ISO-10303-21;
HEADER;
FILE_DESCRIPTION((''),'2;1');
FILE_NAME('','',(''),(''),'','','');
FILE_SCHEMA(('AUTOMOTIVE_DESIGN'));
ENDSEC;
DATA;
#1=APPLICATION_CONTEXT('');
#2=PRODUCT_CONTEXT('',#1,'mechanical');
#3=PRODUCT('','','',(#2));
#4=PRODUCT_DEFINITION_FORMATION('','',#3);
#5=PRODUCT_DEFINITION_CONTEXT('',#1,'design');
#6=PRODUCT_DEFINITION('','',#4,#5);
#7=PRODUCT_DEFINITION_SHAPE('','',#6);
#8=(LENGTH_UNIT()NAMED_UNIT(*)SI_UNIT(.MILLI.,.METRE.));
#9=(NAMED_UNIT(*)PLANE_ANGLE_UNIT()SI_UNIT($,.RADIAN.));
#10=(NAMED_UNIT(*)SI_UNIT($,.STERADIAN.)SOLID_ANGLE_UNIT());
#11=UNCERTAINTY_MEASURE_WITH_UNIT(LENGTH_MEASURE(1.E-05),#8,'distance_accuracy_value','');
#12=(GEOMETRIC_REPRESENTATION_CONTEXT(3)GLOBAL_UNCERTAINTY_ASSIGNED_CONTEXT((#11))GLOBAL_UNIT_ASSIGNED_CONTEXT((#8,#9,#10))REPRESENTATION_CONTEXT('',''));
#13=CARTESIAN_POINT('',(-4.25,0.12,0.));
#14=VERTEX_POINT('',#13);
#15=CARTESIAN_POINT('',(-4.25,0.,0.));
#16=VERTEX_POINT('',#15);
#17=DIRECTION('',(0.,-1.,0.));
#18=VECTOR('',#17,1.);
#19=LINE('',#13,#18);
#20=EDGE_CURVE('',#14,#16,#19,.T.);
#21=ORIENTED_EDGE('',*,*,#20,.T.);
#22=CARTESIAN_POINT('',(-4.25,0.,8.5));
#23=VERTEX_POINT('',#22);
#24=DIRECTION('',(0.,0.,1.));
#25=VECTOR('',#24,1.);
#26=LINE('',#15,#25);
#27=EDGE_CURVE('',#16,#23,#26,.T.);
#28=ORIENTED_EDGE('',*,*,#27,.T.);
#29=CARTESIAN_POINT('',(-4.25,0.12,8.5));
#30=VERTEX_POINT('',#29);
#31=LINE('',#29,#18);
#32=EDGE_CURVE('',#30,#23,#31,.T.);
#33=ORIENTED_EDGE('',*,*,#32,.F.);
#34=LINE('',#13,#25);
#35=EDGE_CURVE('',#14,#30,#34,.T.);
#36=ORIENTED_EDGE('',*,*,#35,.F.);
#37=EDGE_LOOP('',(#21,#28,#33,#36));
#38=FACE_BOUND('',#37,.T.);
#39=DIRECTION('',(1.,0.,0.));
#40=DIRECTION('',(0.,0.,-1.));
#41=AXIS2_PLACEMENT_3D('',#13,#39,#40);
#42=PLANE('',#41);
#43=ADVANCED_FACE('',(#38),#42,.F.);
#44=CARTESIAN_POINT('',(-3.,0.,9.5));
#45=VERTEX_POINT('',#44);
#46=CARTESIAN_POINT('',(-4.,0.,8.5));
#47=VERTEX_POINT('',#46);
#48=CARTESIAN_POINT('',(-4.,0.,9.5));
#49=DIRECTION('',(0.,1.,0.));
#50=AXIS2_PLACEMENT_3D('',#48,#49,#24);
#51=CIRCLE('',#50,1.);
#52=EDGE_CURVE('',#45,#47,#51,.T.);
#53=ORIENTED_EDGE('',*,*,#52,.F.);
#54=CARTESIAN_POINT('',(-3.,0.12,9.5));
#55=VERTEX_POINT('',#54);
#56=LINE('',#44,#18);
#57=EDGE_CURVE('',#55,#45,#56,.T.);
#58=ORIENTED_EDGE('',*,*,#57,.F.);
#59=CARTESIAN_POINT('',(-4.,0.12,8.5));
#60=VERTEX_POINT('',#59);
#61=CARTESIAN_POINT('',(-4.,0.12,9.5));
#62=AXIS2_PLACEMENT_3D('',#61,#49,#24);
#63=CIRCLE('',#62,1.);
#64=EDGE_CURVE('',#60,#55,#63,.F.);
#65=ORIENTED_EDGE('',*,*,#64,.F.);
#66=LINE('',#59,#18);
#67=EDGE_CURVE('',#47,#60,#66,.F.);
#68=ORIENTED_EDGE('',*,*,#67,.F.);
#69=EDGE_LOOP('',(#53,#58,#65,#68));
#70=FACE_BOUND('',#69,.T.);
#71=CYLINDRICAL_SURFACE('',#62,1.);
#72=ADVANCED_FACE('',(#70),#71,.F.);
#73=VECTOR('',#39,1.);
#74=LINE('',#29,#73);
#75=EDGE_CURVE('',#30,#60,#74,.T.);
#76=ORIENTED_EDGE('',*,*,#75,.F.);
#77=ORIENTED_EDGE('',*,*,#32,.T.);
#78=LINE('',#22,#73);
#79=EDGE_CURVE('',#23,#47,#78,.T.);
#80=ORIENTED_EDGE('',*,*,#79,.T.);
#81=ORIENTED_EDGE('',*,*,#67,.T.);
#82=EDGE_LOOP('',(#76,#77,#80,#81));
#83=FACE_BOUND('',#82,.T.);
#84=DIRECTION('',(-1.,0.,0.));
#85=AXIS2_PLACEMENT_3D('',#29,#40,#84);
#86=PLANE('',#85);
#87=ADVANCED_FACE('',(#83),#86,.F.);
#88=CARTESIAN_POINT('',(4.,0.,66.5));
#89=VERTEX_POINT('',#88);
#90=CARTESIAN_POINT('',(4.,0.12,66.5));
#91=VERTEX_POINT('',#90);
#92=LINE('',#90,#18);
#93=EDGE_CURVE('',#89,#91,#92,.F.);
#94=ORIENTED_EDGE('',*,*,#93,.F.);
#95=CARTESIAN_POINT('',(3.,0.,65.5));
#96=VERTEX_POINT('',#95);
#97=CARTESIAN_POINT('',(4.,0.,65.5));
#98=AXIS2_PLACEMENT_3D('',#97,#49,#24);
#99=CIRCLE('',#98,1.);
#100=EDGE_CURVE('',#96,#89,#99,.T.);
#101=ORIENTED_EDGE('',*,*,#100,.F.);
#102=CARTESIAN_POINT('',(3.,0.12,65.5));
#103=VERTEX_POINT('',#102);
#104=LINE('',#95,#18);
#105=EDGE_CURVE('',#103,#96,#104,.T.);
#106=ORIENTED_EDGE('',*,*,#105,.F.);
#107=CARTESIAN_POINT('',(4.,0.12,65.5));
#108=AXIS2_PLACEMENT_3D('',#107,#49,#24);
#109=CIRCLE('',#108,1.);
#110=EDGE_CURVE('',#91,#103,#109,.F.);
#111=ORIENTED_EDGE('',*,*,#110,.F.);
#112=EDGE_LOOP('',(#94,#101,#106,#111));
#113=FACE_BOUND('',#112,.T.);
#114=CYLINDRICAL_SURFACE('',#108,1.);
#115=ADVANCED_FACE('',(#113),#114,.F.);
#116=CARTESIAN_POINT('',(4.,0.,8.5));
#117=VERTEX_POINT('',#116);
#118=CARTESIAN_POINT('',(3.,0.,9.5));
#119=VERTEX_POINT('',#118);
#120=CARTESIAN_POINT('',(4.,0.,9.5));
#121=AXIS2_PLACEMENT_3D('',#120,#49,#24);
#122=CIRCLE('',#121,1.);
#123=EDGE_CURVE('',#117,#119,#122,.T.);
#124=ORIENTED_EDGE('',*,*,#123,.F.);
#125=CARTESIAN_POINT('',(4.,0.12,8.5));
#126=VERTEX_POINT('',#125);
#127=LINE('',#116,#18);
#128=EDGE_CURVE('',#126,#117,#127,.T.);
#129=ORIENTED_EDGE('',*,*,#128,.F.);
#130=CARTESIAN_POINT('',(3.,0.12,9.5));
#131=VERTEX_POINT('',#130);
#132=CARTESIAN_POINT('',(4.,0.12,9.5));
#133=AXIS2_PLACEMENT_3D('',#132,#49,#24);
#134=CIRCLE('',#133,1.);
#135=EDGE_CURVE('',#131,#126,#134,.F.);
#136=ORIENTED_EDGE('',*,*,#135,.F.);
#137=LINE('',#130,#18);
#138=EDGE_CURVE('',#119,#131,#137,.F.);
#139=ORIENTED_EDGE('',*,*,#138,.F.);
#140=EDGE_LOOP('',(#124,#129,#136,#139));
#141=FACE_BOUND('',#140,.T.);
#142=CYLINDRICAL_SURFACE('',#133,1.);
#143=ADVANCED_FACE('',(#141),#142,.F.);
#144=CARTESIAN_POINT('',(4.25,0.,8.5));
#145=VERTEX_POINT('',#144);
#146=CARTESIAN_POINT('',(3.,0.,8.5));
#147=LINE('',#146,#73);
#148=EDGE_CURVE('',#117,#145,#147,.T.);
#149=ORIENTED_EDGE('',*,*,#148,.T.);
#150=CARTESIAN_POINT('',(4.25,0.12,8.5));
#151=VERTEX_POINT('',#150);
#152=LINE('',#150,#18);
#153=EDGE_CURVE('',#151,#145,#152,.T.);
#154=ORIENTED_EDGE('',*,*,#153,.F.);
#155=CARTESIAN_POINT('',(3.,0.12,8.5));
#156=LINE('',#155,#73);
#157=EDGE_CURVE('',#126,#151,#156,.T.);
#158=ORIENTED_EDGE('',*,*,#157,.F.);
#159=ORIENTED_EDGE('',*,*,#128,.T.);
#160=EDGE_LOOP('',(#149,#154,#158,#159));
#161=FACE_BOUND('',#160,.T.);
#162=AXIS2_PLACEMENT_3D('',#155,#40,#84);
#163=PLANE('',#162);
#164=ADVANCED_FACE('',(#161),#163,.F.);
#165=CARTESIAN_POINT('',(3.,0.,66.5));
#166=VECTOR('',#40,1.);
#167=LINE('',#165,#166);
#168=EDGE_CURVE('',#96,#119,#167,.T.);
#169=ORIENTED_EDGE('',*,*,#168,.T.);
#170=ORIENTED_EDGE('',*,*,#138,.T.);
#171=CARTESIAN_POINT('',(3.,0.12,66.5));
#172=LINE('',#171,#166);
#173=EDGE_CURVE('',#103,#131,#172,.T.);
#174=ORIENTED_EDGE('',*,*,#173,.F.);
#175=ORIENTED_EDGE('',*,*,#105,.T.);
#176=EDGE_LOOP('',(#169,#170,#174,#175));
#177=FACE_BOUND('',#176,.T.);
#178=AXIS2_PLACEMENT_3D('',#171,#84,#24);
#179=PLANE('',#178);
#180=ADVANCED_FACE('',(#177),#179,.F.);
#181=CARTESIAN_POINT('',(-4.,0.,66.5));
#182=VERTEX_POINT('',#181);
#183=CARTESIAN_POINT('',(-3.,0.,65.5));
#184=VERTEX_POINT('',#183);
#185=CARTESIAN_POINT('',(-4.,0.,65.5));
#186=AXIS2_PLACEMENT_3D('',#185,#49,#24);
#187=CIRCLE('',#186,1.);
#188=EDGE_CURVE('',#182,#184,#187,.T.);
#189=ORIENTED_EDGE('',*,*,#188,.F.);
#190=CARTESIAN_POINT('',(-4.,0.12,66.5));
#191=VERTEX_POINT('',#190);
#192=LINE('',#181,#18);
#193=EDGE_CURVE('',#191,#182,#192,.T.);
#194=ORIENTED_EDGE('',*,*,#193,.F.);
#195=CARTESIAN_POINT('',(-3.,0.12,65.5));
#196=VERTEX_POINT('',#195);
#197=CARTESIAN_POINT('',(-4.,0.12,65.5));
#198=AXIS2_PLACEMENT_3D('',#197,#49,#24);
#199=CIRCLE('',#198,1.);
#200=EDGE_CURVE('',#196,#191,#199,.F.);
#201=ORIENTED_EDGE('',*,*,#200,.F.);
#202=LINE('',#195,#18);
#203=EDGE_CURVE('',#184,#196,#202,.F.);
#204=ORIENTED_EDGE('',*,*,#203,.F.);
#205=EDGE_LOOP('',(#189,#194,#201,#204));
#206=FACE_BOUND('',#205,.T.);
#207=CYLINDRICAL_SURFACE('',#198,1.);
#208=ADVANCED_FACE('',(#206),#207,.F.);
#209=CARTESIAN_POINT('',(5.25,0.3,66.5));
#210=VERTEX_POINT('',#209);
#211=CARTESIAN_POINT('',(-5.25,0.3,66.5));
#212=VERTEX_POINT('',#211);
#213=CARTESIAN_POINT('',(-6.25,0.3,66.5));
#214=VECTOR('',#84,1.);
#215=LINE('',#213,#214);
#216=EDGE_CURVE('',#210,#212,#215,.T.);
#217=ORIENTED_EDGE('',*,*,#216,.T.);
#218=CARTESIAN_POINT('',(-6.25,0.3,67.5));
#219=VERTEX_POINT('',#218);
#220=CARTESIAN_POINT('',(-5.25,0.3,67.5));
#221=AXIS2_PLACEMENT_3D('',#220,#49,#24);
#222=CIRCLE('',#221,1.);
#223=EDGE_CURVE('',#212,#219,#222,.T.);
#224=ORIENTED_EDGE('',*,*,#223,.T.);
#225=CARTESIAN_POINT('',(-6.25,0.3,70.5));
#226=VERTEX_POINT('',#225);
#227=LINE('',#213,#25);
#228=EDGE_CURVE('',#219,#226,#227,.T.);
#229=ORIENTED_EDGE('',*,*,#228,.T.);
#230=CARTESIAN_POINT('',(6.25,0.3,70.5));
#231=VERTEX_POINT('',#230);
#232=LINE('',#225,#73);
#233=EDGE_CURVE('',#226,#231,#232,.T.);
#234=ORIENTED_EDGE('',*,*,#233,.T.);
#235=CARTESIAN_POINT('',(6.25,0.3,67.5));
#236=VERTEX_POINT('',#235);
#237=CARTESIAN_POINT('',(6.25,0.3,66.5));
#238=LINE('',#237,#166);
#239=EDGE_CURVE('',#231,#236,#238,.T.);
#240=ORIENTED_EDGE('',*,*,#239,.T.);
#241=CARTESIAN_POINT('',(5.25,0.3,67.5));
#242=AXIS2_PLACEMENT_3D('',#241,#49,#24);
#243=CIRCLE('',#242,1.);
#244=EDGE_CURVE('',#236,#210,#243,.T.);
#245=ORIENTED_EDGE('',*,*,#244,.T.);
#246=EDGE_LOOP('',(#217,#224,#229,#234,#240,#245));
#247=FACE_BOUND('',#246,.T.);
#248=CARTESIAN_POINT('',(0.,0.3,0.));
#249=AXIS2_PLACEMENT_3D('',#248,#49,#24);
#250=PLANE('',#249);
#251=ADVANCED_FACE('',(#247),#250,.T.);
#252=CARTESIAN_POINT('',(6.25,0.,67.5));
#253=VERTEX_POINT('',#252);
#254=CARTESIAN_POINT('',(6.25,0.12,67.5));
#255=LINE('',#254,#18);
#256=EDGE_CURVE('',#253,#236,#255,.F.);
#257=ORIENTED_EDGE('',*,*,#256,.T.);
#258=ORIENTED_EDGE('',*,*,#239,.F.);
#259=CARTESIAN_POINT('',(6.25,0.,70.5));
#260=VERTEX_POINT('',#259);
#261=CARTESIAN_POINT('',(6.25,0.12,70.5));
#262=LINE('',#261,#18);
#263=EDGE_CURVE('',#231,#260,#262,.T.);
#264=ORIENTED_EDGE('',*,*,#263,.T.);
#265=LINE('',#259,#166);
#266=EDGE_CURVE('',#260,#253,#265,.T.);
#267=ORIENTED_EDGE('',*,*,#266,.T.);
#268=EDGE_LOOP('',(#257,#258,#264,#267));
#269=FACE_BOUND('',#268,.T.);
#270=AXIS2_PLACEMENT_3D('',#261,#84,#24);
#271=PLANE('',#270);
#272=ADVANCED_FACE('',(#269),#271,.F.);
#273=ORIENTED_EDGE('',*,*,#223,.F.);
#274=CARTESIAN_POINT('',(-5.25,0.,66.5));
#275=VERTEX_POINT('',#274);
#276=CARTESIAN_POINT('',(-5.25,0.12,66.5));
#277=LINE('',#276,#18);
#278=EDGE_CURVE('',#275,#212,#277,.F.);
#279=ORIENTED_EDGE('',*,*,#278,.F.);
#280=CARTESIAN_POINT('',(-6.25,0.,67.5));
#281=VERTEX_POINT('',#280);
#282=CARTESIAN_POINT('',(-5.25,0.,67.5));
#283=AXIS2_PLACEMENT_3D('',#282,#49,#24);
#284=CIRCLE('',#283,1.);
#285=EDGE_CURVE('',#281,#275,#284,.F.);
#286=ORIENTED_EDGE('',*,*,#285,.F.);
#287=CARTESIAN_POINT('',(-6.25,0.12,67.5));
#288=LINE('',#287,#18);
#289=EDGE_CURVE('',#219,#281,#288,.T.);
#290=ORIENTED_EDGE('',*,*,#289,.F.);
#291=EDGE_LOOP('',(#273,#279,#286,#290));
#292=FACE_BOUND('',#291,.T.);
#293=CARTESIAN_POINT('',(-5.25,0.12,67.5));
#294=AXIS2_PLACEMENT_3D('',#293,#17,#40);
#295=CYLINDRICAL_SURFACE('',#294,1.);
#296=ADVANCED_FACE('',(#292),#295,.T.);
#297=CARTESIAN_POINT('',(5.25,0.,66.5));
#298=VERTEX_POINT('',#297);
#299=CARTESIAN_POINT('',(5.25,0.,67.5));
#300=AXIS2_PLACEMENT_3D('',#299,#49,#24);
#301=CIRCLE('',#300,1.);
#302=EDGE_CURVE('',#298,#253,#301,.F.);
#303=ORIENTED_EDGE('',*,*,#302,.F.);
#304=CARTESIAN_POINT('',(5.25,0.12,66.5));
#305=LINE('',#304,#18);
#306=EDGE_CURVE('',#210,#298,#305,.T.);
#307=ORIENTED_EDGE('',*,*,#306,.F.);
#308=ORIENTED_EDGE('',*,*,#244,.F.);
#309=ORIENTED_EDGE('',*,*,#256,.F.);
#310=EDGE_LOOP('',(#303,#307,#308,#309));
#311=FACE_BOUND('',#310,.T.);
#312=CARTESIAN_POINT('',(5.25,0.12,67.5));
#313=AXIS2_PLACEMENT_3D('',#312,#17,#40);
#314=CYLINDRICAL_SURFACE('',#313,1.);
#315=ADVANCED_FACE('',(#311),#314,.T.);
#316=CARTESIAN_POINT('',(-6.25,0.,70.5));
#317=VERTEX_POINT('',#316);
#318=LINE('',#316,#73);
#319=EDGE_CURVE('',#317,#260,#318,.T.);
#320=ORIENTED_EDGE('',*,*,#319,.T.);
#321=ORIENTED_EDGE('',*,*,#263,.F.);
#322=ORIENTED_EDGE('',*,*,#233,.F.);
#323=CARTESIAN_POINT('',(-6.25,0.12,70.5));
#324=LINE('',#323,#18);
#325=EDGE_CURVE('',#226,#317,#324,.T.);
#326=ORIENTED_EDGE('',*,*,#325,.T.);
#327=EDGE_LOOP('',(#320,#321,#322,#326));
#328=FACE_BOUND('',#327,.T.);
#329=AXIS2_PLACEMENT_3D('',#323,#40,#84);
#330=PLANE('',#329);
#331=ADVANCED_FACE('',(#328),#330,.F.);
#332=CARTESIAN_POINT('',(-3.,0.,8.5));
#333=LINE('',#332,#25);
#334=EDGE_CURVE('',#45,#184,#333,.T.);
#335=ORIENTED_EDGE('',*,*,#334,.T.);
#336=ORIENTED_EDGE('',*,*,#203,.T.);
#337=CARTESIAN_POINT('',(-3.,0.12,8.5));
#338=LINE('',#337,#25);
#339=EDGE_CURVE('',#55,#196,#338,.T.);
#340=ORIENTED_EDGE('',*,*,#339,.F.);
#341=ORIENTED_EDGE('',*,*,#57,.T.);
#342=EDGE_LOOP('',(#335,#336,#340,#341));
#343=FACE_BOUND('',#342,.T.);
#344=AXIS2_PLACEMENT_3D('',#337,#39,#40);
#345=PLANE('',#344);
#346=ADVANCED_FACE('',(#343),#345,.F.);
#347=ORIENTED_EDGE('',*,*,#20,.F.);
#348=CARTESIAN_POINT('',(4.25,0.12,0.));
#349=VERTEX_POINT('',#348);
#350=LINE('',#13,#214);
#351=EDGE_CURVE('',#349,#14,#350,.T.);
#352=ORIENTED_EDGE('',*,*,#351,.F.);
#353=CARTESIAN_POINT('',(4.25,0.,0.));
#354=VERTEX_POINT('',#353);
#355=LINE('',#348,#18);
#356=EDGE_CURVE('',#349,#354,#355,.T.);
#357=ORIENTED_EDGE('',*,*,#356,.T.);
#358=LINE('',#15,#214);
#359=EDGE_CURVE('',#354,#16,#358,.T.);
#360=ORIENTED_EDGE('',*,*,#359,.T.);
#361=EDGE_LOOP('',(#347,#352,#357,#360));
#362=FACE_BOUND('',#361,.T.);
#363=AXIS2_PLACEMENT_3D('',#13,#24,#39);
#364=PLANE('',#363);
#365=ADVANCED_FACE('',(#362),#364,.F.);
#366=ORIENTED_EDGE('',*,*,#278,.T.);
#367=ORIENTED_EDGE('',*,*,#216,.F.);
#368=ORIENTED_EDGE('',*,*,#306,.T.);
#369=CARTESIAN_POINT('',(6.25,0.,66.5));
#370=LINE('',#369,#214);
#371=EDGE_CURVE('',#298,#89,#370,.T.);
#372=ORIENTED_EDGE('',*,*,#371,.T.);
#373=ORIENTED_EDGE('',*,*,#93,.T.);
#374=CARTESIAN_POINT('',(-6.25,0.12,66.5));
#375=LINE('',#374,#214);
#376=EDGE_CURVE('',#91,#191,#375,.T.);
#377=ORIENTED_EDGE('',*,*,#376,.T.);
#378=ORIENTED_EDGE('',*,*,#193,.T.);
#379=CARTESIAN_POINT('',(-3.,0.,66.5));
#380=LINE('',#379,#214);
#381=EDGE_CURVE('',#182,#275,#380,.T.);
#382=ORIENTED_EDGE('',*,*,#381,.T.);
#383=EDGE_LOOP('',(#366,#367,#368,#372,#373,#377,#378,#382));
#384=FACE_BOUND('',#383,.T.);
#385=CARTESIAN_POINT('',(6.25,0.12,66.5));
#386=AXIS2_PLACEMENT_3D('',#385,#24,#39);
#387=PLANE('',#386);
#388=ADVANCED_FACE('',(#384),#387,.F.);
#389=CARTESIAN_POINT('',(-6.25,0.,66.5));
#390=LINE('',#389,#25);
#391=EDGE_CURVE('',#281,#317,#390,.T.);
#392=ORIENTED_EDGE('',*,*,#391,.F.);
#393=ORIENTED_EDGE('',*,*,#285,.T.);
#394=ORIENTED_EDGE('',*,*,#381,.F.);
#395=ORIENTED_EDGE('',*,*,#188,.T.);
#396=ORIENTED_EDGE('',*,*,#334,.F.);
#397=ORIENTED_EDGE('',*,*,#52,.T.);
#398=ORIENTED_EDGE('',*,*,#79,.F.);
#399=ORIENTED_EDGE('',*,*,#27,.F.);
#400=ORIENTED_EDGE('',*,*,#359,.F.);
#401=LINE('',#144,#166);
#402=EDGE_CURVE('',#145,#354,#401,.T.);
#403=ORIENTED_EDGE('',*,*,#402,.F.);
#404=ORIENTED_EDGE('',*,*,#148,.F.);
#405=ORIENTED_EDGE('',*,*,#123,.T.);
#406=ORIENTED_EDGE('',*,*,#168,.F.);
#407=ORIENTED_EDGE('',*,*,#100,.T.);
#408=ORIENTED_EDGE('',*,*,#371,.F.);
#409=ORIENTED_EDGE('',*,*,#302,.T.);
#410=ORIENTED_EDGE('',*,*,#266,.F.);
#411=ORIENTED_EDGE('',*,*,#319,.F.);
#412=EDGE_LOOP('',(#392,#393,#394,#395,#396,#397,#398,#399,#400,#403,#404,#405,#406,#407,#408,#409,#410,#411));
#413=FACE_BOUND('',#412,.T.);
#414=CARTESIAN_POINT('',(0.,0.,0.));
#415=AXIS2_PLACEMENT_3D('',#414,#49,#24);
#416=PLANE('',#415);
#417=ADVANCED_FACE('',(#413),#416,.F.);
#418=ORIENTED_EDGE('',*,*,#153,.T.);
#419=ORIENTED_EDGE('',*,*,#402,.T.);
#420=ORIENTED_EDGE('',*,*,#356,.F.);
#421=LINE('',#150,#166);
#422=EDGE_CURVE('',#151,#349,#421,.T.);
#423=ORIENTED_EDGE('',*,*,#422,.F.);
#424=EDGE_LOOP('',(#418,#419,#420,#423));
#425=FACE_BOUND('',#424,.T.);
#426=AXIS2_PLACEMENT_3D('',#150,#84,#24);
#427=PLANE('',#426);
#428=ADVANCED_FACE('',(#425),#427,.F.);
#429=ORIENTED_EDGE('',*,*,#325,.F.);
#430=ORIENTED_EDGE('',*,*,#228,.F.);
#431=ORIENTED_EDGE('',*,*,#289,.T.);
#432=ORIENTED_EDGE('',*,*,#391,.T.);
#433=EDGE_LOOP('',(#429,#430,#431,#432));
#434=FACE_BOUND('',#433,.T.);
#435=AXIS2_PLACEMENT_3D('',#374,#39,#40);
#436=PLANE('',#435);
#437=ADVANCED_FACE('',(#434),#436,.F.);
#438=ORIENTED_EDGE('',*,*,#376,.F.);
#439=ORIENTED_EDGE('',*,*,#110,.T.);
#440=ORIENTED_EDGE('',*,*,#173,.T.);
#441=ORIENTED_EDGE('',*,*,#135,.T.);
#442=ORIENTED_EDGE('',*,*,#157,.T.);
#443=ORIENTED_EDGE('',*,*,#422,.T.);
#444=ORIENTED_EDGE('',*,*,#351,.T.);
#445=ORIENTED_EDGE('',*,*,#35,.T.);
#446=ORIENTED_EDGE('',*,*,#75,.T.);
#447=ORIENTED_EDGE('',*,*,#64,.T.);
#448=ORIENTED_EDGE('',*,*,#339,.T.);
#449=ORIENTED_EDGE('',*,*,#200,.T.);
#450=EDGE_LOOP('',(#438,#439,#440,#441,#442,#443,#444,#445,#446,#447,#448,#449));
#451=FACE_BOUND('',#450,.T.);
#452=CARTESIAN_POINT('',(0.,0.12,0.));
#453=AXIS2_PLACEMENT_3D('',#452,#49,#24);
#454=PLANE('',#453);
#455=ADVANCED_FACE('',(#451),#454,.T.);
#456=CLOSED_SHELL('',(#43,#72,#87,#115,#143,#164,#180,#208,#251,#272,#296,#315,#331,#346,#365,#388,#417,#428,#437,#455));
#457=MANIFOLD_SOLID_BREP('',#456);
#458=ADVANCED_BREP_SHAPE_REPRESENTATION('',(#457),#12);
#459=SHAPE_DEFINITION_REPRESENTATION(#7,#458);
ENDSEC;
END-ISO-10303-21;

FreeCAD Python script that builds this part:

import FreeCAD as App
import Part
import Sketcher


def edges_at(feature, points):
    """Names of the edges that pass closest to the given points."""
    edges = feature.Shape.Edges
    near = lambda p: min(range(len(edges)), key=lambda i: edges[i].distToShape(Part.Vertex(*p))[0])
    return sorted({f"Edge{near(p) + 1}" for p in points})


def add_polygon(sketch, points):
    """Adds a closed chain of lines whose ends are joined by coincident constraints."""
    first, n = sketch.GeometryCount, len(points)
    for a, b in zip(points, points[1:] + points[:1]):
        sketch.addGeometry(Part.LineSegment(App.Vector(*a, 0), App.Vector(*b, 0)), False)
    for i in range(n):
        sketch.addConstraint(Sketcher.Constraint("Coincident", first + i, 2, first + (i + 1) % n, 1))

doc = App.newDocument("Part")
body = doc.addObject("PartDesign::Body", "Body")

# Sketch on XZ plane
sketch1 = body.newObject("Sketcher::SketchObject", "Sketch")
sketch1.AttachmentSupport = (doc.getObject("XZ_Plane"), [""])
sketch1.MapMode = "FlatFace"
add_polygon(sketch1, [(4.2, 0), (-4.2, 0), (-4.2, 8.5), (-3, 8.5), (-3, 66.5), (-6.2, 66.5), (-6.2, 70.5), (6.2, 70.5), (6.2, 66.5), (3, 66.5), (3, 8.5), (4.2, 8.5)])  # lines 0-11
sketch1.addConstraint(Sketcher.Constraint("Horizontal", 0))
sketch1.addConstraint(Sketcher.Constraint("Vertical", 1))
sketch1.addConstraint(Sketcher.Constraint("Horizontal", 2))
sketch1.addConstraint(Sketcher.Constraint("Vertical", 3))
sketch1.addConstraint(Sketcher.Constraint("Horizontal", 4))
sketch1.addConstraint(Sketcher.Constraint("Vertical", 5))
sketch1.addConstraint(Sketcher.Constraint("Horizontal", 6))
sketch1.addConstraint(Sketcher.Constraint("Vertical", 7))
sketch1.addConstraint(Sketcher.Constraint("Horizontal", 8))
sketch1.addConstraint(Sketcher.Constraint("Vertical", 9))
sketch1.addConstraint(Sketcher.Constraint("Horizontal", 10))
sketch1.addConstraint(Sketcher.Constraint("Vertical", 11))
sketch1.addConstraint(Sketcher.Constraint("Symmetric", 0, 2, 11, 2, -1, 1))
sketch1.addConstraint(Sketcher.Constraint("Symmetric", 4, 2, 7, 2, -2))
sketch1.addConstraint(Sketcher.Constraint("Symmetric", 2, 2, 9, 2, -2))
sketch1.addConstraint(Sketcher.Constraint("Equal", 0, 1))
sketch1.addConstraint(Sketcher.Constraint("DistanceY", 3, 1, 3, 2, 58.0))
sketch1.addConstraint(Sketcher.Constraint("DistanceY", 5, 1, 5, 2, 4.0))
sketch1.addConstraint(Sketcher.Constraint("DistanceX", 0, 2, 0, 1, 8.5))
sketch1.addConstraint(Sketcher.Constraint("DistanceX", 6, 1, 6, 2, 12.5))
sketch1.addConstraint(Sketcher.Constraint("DistanceX", 2, 2, -1, 1, 3.0))
pad1 = body.newObject("PartDesign::Pad", "Pad")
pad1.Profile = sketch1
pad1.Length = 0.12
pad1.Reversed = True

# Sketch on XZ plane
sketch2 = body.newObject("Sketcher::SketchObject", "Sketch001")
sketch2.AttachmentSupport = (doc.getObject("XZ_Plane"), [""])
sketch2.MapMode = "FlatFace"
sketch2.AttachmentOffset = App.Placement(App.Vector(0, 0, -0.12), App.Rotation())
add_polygon(sketch2, [(-6.2, 66.5), (-6.2, 70.5), (6.2, 70.5), (6.2, 66.5)])  # lines 0-3
sketch2.addConstraint(Sketcher.Constraint("Vertical", 0))
sketch2.addConstraint(Sketcher.Constraint("Horizontal", 1))
sketch2.addConstraint(Sketcher.Constraint("Vertical", 2))
sketch2.addConstraint(Sketcher.Constraint("Horizontal", 3))
sketch2.addConstraint(Sketcher.Constraint("DistanceY", 0, 1, 0, 2, 4.0))
sketch2.addConstraint(Sketcher.Constraint("DistanceX", 1, 1, 1, 2, 12.5))
sketch2.addConstraint(Sketcher.Constraint("DistanceY", -1, 1, 0, 2, 70.5))
sketch2.addConstraint(Sketcher.Constraint("DistanceX", 0, 2, -1, 1, 6.25))
pad2 = body.newObject("PartDesign::Pad", "Pad001")
pad2.Profile = sketch2
pad2.Length = 0.18
pad2.Reversed = True
doc.recompute()

fillet = body.newObject("PartDesign::Fillet", "Fillet")
fillet.Base = (pad2, edges_at(pad2, [
    (3, 0.06, 8.5),
    (3, 0.06, 66.5),
    (6.25, 0.15, 66.5),
    (-6.25, 0.15, 66.5),
    (-3, 0.06, 66.5),
    (-3, 0.06, 8.5),
]))
fillet.Radius = 1

doc.recompute()
